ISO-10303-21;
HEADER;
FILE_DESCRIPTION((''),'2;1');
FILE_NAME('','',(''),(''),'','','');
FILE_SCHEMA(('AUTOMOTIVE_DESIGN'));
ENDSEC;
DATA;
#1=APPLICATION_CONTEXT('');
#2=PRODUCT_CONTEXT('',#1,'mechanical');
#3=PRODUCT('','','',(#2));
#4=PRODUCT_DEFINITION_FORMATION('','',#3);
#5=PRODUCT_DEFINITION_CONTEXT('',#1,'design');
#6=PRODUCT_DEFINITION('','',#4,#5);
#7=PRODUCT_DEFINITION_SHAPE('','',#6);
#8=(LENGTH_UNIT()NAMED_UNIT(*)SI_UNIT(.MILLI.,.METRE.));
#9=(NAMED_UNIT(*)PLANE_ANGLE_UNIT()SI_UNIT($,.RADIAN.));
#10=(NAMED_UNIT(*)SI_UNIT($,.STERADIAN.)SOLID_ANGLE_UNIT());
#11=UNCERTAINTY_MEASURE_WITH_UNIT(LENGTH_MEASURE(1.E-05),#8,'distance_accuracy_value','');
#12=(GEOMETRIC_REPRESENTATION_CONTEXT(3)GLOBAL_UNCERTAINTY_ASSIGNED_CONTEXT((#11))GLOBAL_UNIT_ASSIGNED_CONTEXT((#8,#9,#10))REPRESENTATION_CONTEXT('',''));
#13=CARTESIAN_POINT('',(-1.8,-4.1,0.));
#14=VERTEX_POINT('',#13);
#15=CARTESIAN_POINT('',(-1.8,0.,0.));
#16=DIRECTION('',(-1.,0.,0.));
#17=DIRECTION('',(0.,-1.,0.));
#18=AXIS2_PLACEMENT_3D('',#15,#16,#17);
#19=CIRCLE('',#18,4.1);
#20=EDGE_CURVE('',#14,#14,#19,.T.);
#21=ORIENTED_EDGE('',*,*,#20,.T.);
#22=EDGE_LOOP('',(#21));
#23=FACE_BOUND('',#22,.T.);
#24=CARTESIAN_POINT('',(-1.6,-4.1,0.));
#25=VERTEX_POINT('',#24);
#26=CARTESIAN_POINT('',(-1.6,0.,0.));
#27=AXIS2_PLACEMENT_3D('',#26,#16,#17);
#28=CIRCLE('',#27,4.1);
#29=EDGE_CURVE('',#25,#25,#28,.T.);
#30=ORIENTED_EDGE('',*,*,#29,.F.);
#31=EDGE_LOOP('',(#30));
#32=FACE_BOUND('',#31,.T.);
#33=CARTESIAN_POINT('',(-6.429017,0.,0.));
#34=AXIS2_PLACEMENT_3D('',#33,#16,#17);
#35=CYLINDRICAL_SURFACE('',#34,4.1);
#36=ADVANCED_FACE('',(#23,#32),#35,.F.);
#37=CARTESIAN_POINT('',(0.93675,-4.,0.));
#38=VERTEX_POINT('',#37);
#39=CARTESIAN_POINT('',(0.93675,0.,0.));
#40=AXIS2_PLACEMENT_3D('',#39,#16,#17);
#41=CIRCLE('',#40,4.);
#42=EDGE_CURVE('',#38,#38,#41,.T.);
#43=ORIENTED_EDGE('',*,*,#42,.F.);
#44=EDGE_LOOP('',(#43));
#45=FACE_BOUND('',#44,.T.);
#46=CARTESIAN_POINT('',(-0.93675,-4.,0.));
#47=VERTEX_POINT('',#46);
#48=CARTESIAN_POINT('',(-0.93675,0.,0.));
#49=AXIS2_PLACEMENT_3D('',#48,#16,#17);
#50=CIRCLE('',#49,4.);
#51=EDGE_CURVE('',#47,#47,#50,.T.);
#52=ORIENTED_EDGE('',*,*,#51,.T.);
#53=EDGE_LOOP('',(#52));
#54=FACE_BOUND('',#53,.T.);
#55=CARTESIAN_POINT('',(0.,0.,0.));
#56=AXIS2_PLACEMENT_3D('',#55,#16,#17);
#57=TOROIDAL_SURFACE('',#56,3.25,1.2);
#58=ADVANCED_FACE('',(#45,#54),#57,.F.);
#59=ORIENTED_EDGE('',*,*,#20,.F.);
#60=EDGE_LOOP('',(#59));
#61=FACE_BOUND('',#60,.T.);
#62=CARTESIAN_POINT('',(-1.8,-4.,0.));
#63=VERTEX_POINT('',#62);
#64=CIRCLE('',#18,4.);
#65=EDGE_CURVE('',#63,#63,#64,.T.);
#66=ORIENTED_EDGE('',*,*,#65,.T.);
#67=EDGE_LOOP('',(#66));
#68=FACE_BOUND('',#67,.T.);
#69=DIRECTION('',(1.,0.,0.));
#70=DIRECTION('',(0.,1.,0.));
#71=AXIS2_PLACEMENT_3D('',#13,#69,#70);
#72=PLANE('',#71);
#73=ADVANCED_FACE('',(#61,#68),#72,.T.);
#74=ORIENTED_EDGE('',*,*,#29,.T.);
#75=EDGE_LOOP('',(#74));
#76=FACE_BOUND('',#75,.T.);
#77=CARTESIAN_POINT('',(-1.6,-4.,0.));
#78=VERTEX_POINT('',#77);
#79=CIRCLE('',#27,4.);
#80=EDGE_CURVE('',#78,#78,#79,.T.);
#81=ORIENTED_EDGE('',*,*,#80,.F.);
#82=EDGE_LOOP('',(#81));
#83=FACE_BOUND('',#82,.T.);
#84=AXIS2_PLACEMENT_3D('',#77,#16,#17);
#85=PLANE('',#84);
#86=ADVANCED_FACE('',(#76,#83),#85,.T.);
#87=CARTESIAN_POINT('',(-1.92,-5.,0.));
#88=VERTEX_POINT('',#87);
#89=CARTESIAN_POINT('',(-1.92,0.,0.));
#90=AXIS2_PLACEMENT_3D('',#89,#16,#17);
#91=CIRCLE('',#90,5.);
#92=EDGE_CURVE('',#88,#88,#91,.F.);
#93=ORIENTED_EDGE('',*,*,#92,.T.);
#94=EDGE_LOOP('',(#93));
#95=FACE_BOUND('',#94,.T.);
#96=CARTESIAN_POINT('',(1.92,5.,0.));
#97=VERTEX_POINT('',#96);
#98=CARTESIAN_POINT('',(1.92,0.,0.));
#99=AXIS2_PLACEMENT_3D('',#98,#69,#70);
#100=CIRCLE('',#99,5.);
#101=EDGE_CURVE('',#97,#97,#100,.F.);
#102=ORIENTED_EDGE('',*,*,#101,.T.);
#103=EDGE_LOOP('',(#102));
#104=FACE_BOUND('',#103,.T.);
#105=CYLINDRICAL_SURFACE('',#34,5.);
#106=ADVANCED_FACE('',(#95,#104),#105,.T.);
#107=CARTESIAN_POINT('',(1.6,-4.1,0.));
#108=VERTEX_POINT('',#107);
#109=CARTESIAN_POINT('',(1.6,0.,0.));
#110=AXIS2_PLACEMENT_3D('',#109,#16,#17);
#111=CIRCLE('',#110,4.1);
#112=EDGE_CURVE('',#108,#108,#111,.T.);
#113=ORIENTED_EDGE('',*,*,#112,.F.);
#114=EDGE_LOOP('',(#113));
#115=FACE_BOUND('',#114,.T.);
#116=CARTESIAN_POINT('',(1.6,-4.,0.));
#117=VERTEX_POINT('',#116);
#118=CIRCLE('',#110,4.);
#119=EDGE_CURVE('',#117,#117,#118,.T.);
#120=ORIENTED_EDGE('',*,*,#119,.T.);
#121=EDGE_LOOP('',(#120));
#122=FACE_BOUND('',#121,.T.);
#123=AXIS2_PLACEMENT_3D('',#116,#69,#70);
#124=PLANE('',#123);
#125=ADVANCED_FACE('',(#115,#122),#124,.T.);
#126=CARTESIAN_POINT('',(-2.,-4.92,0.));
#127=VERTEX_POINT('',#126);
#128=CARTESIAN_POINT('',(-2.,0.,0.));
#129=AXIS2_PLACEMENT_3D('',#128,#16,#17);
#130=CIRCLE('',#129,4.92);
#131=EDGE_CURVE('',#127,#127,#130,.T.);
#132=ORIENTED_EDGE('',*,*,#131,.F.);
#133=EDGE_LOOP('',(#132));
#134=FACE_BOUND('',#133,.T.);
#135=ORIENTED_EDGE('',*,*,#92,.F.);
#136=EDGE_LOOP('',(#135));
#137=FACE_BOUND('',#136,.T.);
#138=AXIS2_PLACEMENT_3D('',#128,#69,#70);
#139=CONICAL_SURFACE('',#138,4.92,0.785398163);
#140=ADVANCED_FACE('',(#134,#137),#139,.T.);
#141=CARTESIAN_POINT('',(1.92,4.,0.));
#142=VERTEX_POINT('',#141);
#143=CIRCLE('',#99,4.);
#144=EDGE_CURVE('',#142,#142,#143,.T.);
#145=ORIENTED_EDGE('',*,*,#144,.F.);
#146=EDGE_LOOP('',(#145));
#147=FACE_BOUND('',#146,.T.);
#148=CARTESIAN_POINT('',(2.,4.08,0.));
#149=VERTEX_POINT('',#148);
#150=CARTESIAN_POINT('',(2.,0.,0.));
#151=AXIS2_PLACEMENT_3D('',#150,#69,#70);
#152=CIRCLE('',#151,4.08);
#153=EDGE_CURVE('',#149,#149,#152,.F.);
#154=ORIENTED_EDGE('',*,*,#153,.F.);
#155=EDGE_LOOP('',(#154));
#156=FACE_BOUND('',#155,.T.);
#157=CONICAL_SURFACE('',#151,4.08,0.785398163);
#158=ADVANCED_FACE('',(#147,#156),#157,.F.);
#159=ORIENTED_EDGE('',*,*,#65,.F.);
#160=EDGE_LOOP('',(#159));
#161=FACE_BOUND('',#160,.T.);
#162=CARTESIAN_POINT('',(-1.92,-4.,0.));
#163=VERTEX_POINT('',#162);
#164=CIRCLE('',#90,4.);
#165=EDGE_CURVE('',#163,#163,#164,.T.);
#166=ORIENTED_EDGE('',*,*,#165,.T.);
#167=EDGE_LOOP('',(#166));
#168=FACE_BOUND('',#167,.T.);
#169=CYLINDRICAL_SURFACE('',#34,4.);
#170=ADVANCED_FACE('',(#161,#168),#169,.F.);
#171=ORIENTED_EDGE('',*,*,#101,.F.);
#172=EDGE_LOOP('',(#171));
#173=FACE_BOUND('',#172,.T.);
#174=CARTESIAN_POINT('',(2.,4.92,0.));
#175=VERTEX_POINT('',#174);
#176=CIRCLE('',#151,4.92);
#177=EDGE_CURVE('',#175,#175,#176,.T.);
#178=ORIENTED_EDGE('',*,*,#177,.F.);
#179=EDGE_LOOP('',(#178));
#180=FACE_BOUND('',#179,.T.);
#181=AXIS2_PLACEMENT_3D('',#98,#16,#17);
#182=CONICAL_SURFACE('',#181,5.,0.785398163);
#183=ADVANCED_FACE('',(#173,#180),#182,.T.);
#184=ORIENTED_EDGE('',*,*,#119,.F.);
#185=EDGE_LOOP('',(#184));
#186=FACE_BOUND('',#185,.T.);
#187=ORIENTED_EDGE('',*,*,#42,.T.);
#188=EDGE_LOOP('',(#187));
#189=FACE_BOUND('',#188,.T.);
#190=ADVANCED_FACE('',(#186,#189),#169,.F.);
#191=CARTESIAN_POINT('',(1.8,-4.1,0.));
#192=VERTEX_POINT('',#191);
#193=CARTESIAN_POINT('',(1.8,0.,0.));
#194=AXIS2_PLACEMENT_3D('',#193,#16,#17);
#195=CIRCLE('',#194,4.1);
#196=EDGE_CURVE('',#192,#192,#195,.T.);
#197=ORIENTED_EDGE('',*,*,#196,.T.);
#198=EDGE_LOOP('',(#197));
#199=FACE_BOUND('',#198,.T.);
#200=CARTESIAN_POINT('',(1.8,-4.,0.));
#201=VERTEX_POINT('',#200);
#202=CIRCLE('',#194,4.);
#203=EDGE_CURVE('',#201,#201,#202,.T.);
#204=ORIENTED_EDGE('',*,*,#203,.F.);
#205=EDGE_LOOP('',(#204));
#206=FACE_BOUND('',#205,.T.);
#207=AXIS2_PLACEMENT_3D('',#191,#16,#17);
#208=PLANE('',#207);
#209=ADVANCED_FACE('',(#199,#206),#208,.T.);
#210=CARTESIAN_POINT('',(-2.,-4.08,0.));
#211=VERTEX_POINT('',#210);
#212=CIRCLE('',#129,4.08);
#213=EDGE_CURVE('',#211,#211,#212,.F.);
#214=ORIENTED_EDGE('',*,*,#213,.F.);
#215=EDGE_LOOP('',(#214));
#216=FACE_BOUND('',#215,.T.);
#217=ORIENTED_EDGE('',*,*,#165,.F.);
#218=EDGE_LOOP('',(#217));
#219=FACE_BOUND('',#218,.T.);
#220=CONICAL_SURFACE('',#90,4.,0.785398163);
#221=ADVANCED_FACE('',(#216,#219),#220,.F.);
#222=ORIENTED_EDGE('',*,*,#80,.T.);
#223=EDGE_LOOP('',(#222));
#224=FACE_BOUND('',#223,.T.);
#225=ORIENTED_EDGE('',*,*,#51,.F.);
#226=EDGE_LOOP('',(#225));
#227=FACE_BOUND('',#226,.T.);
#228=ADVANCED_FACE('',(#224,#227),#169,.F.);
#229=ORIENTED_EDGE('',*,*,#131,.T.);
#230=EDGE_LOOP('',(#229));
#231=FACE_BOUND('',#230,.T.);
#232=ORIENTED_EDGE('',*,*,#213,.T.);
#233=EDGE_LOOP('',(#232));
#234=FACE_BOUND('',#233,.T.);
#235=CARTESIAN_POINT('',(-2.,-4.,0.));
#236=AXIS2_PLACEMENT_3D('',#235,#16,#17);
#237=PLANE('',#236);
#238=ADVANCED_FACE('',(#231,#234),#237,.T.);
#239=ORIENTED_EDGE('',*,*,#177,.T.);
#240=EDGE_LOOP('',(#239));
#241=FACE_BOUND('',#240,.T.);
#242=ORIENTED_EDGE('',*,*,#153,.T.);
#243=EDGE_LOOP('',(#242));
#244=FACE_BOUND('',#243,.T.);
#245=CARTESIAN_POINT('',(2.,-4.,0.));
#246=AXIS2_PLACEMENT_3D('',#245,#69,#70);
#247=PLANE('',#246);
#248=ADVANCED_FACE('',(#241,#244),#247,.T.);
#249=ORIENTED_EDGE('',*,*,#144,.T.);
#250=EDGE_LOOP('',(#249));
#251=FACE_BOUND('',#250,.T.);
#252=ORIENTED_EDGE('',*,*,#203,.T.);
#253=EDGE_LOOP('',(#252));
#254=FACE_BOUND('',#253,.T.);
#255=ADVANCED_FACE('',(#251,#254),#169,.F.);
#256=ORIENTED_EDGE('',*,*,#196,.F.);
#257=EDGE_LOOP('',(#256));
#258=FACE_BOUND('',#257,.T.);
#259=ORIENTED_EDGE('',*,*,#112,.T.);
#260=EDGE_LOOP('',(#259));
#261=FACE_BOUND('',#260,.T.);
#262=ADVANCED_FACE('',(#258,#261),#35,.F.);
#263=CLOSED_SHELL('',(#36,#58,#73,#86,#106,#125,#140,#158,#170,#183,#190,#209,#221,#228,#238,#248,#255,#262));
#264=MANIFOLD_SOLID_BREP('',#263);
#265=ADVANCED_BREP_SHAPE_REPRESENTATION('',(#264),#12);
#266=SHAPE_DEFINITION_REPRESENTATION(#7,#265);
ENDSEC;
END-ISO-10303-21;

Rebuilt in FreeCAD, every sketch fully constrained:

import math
import FreeCAD as App
import Part
import Sketcher
from FreeCAD import Vector


def edges_at(feature, points):
    """Names of the edges that pass closest to the given points."""
    edges = feature.Shape.Edges
    near = lambda p: min(range(len(edges)), key=lambda i: edges[i].distToShape(Part.Vertex(*p))[0])
    return sorted({f"Edge{near(p) + 1}" for p in points})

doc = App.newDocument("Part")
body = doc.addObject("PartDesign::Body", "Body")

# Sketch on XY plane
sketch1 = doc.addObject("Sketcher::SketchObject", "Sketch")
body.addObject(sketch1)
sketch1.AttachmentSupport = (doc.XY_Plane, [""])
sketch1.MapMode = "FlatFace"
sketch1.addGeometry([
    Part.LineSegment(Vector(-0.94, -4, 0), Vector(-1.6, -4, 0)),  # 0
    Part.LineSegment(Vector(-1.6, -4, 0), Vector(-1.6, -4.1, 0)),  # 1
    Part.LineSegment(Vector(-1.6, -4.1, 0), Vector(-1.8, -4.1, 0)),  # 2
    Part.LineSegment(Vector(-1.8, -4.1, 0), Vector(-1.8, -4, 0)),  # 3
    Part.LineSegment(Vector(-1.8, -4, 0), Vector(-2, -4, 0)),  # 4
    Part.LineSegment(Vector(-2, -4, 0), Vector(-2, -5, 0)),  # 5
    Part.LineSegment(Vector(-2, -5, 0), Vector(2, -5, 0)),  # 6
    Part.LineSegment(Vector(2, -5, 0), Vector(2, -4, 0)),  # 7
    Part.LineSegment(Vector(2, -4, 0), Vector(1.8, -4, 0)),  # 8
    Part.LineSegment(Vector(1.8, -4, 0), Vector(1.8, -4.1, 0)),  # 9
    Part.LineSegment(Vector(1.8, -4.1, 0), Vector(1.6, -4.1, 0)),  # 10
    Part.LineSegment(Vector(1.6, -4.1, 0), Vector(1.6, -4, 0)),  # 11
    Part.LineSegment(Vector(1.6, -4, 0), Vector(0.94, -4, 0)),  # 12
    Part.ArcOfCircle(Part.Circle(Vector(0, -3.25, 0), Vector(0, 0, 1), 1.2), math.radians(-141), math.radians(-39)),  # 13
], False)
sketch1.addConstraint([
    Sketcher.Constraint("Coincident", 0, 2, 1, 1),
    Sketcher.Constraint("Coincident", 1, 2, 2, 1),
    Sketcher.Constraint("Coincident", 2, 2, 3, 1),
    Sketcher.Constraint("Coincident", 3, 2, 4, 1),
    Sketcher.Constraint("Coincident", 4, 2, 5, 1),
    Sketcher.Constraint("Coincident", 5, 2, 6, 1),
    Sketcher.Constraint("Coincident", 6, 2, 7, 1),
    Sketcher.Constraint("Coincident", 7, 2, 8, 1),
    Sketcher.Constraint("Coincident", 8, 2, 9, 1),
    Sketcher.Constraint("Coincident", 9, 2, 10, 1),
    Sketcher.Constraint("Coincident", 10, 2, 11, 1),
    Sketcher.Constraint("Coincident", 11, 2, 12, 1),
    Sketcher.Constraint("Coincident", 12, 2, 13, 2),
    Sketcher.Constraint("Coincident", 13, 1, 0, 1),
    Sketcher.Constraint("Horizontal", 0),
    Sketcher.Constraint("Vertical", 1),
    Sketcher.Constraint("Horizontal", 2),
    Sketcher.Constraint("Vertical", 3),
    Sketcher.Constraint("Horizontal", 4),
    Sketcher.Constraint("Vertical", 5),
    Sketcher.Constraint("Horizontal", 6),
    Sketcher.Constraint("Vertical", 7),
    Sketcher.Constraint("Horizontal", 8),
    Sketcher.Constraint("Vertical", 9),
    Sketcher.Constraint("Horizontal", 10),
    Sketcher.Constraint("Vertical", 11),
    Sketcher.Constraint("Horizontal", 12),
    Sketcher.Constraint("Symmetric", 4, 2, 7, 2, -2),
    Sketcher.Constraint("Symmetric", 2, 2, 9, 2, -2),
    Sketcher.Constraint("Symmetric", 0, 2, 11, 2, -2),
    Sketcher.Constraint("PointOnObject", 13, 3, -2),
    Sketcher.Constraint("Horizontal", 0, 2, 3, 2),
    Sketcher.Constraint("Equal", 2, 4),
    Sketcher.Constraint("Radius", 13, 1.2),
    Sketcher.Constraint("DistanceX", 6, 1, 6, 2, 4.0),
    Sketcher.Constraint("DistanceY", 5, 2, 5, 1, 1.0),
    Sketcher.Constraint("DistanceX", 2, 2, 2, 1, 0.2),
    Sketcher.Constraint("DistanceY", 1, 2, 1, 1, 0.1),
    Sketcher.Constraint("DistanceY", 0, 2, -1, 1, 4.0),
    Sketcher.Constraint("DistanceY", 13, 3, -1, 1, 3.25),
])
revolution = doc.addObject("PartDesign::Revolution", "Revolution")
body.addObject(revolution)
revolution.Profile = sketch1
revolution.ReferenceAxis = (sketch1, ["H_Axis"])
revolution.Angle = 360
doc.recompute()

chamfer = doc.addObject("PartDesign::Chamfer", "Chamfer")
body.addObject(chamfer)
chamfer.Base = (revolution, edges_at(revolution, [
    (2, 5, 0),
    (-2, 5, 0),
    (-2, 4, 0),
    (2, 4, 0),
]))
chamfer.Size = 0.08

doc.recompute()
